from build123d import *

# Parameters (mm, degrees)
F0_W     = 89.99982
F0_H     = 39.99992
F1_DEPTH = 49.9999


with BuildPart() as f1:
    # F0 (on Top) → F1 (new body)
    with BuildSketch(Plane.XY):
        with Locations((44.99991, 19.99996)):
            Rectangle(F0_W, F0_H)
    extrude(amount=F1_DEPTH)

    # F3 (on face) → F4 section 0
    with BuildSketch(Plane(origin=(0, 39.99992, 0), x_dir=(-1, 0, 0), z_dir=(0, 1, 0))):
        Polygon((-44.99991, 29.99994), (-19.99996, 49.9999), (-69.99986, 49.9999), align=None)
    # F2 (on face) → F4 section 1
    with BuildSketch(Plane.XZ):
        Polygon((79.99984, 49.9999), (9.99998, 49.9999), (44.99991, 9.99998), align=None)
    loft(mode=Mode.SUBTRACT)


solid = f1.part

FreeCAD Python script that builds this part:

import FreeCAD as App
import Part
import Sketcher
from FreeCAD import Vector
Q = App.Units.Quantity


def add_polygon(sketch, points):
    """Adds a closed chain of lines whose ends are joined by coincident constraints."""
    first, n = sketch.GeometryCount, len(points)
    for a, b in zip(points, points[1:] + points[:1]):
        sketch.addGeometry(Part.LineSegment(App.Vector(*a, 0), App.Vector(*b, 0)), False)
    for i in range(n):
        sketch.addConstraint(Sketcher.Constraint("Coincident", first + i, 2, first + (i + 1) % n, 1))

doc = App.newDocument("Part")
params = doc.addObject("Spreadsheet::Sheet", "Params")
for row, (alias, value) in enumerate([
    ("pad1_length", "49.9999 mm"),
], start=1):
    params.set(f"A{row}", alias)
    params.set(f"B{row}", "=" + value)
    params.setAlias(f"B{row}", alias)

body = doc.addObject("PartDesign::Body", "Body")

# Sketch on XY plane
sketch1 = doc.addObject("Sketcher::SketchObject", "Sketch")
body.addObject(sketch1)
sketch1.AttachmentSupport = (doc.XY_Plane, [""])
sketch1.MapMode = "FlatFace"
add_polygon(sketch1, [(0, 40), (0, 0), (90, 0), (90, 40)])  # lines 0-3
sketch1.addConstraint([
    Sketcher.Constraint("Vertical", 0),
    Sketcher.Constraint("Horizontal", 1),
    Sketcher.Constraint("Vertical", 2),
    Sketcher.Constraint("Horizontal", 3),
    Sketcher.Constraint("Coincident", 0, 2, -1, 1),
    Sketcher.Constraint("DistanceX", 1, 1, 1, 2, Q("89.99982 mm")),
    Sketcher.Constraint("DistanceY", 0, 2, 0, 1, Q("39.99992 mm")),
])
pad1 = doc.addObject("PartDesign::Pad", "Pad")
body.addObject(pad1)
pad1.Profile = sketch1
pad1.setExpression("Length", "Params.pad1_length")

# Sketch on XZ plane
sketch2 = doc.addObject("Sketcher::SketchObject", "Sketch001")
body.addObject(sketch2)
sketch2.AttachmentSupport = (doc.XZ_Plane, [""])
sketch2.MapMode = "FlatFace"
sketch2.AttachmentOffset = App.Placement(Vector(0, 0, -39.99992), App.Rotation())
add_polygon(sketch2, [(45, 30), (20, 50), (70, 50)])  # lines 0-2
sketch2.addConstraint([
    Sketcher.Constraint("Horizontal", 1),
    Sketcher.Constraint("Equal", 0, 2),
    Sketcher.Constraint("DistanceX", 1, 1, 1, 2, Q("49.9999 mm")),
    Sketcher.Constraint("DistanceY", -1, 1, 0, 2, Q("49.9999 mm")),
    Sketcher.Constraint("DistanceX", -1, 1, 0, 2, Q("19.99996 mm")),
    Sketcher.Constraint("DistanceY", -1, 1, 2, 2, Q("29.99994 mm")),
])

# Sketch on XZ plane
sketch3 = doc.addObject("Sketcher::SketchObject", "Sketch002")
body.addObject(sketch3)
sketch3.AttachmentSupport = (doc.XZ_Plane, [""])
sketch3.MapMode = "FlatFace"
add_polygon(sketch3, [(80, 50), (10, 50), (45, 10)])  # lines 0-2
sketch3.addConstraint([
    Sketcher.Constraint("Horizontal", 0),
    Sketcher.Constraint("Equal", 1, 2),
    Sketcher.Constraint("DistanceX", 0, 2, 0, 1, Q("69.99986 mm")),
    Sketcher.Constraint("DistanceY", -1, 1, 0, 2, Q("49.9999 mm")),
    Sketcher.Constraint("DistanceX", -1, 1, 0, 2, Q("9.99998 mm")),
    Sketcher.Constraint("DistanceY", -1, 1, 1, 2, Q("9.99998 mm")),
])

subtractiveloft = doc.addObject("PartDesign::SubtractiveLoft", "SubtractiveLoft")
body.addObject(subtractiveloft)
subtractiveloft.Profile = sketch2
subtractiveloft.Sections = [sketch3]

doc.recompute()
